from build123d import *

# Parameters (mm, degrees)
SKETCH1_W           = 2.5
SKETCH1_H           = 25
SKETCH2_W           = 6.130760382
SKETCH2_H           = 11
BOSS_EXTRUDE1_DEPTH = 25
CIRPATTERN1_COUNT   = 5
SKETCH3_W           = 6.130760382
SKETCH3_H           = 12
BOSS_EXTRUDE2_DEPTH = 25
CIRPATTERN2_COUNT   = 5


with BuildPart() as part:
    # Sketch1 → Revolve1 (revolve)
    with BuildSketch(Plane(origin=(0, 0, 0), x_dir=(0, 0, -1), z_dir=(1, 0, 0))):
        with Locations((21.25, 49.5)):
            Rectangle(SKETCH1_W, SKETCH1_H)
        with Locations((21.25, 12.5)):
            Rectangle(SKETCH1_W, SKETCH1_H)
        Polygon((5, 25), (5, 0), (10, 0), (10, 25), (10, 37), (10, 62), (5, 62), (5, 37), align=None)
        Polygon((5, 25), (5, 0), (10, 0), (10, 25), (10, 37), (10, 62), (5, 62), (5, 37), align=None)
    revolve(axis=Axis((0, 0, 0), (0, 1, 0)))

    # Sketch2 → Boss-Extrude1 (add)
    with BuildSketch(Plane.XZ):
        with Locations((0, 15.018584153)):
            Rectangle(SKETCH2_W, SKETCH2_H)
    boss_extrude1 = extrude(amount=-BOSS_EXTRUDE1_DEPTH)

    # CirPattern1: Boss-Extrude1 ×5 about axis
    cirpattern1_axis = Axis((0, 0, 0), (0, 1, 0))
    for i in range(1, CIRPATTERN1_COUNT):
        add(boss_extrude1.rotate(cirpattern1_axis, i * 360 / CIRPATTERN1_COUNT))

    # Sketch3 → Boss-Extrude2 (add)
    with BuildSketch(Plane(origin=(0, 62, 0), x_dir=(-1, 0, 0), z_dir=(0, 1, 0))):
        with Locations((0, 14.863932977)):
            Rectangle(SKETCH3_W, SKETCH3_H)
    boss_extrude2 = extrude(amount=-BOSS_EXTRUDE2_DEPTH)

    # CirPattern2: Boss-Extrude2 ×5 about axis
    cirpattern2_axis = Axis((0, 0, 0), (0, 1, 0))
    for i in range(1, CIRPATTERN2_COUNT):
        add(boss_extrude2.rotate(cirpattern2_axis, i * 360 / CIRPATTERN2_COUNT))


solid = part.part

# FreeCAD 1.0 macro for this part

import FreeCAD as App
import Part
import Sketcher
from FreeCAD import Vector

doc = App.newDocument("Part")
body = doc.addObject("PartDesign::Body", "Body")
body.AllowCompound = True

sketch1 = body.newObject("Sketcher::SketchObject", "Sketch")
sketch1.AttachmentSupport = (doc.getObject("YZ_Plane"), [""])
sketch1.MapMode = "FlatFace"
sketch1.addGeometry([
    Part.LineSegment(Vector(62, -20, 0), Vector(37, -20, 0)),
    Part.LineSegment(Vector(37, -20, 0), Vector(37, -22.5, 0)),
    Part.LineSegment(Vector(37, -22.5, 0), Vector(62, -22.5, 0)),
    Part.LineSegment(Vector(62, -22.5, 0), Vector(62, -20, 0)),
    Part.LineSegment(Vector(25, -20, 0), Vector(0, -20, 0)),
    Part.LineSegment(Vector(0, -20, 0), Vector(0, -22.5, 0)),
    Part.LineSegment(Vector(0, -22.5, 0), Vector(25, -22.5, 0)),
    Part.LineSegment(Vector(25, -22.5, 0), Vector(25, -20, 0)),
    Part.LineSegment(Vector(0, -5, 0), Vector(0, -10, 0)),
    Part.LineSegment(Vector(0, -10, 0), Vector(62, -10, 0)),
    Part.LineSegment(Vector(62, -10, 0), Vector(62, -5, 0)),
    Part.LineSegment(Vector(62, -5, 0), Vector(0, -5, 0)),
], False)
sketch1.addConstraint([
    Sketcher.Constraint("Coincident", 0, 2, 1, 1),
    Sketcher.Constraint("Coincident", 1, 2, 2, 1),
    Sketcher.Constraint("Coincident", 2, 2, 3, 1),
    Sketcher.Constraint("Coincident", 3, 2, 0, 1),
    Sketcher.Constraint("Coincident", 4, 2, 5, 1),
    Sketcher.Constraint("Coincident", 5, 2, 6, 1),
    Sketcher.Constraint("Coincident", 6, 2, 7, 1),
    Sketcher.Constraint("Coincident", 7, 2, 4, 1),
    Sketcher.Constraint("Coincident", 8, 2, 9, 1),
    Sketcher.Constraint("Coincident", 9, 2, 10, 1),
    Sketcher.Constraint("Coincident", 10, 2, 11, 1),
    Sketcher.Constraint("Coincident", 11, 2, 8, 1),
    Sketcher.Constraint("Horizontal", 0),
    Sketcher.Constraint("Vertical", 1),
    Sketcher.Constraint("Horizontal", 2),
    Sketcher.Constraint("Vertical", 3),
    Sketcher.Constraint("Horizontal", 4),
    Sketcher.Constraint("Vertical", 5),
    Sketcher.Constraint("Horizontal", 6),
    Sketcher.Constraint("Vertical", 7),
    Sketcher.Constraint("Vertical", 8),
    Sketcher.Constraint("Horizontal", 9),
    Sketcher.Constraint("Vertical", 10),
    Sketcher.Constraint("Horizontal", 11),
    Sketcher.Constraint("PointOnObject", 4, 2, -2),
    Sketcher.Constraint("PointOnObject", 8, 2, -2),
    Sketcher.Constraint("Horizontal", 3, 2, 4, 2),
    Sketcher.Constraint("Horizontal", 2, 2, 5, 2),
    Sketcher.Constraint("Vertical", 3, 2, 9, 2),
    Sketcher.Constraint("Equal", 2, 4),
    Sketcher.Constraint("DistanceX", 0, 2, 0, 1, 25.0),
    Sketcher.Constraint("DistanceX", 9, 1, 9, 2, 62.0),
    Sketcher.Constraint("DistanceY", 8, 2, 8, 1, 5.0),
    Sketcher.Constraint("DistanceY", 1, 2, 1, 1, 2.5),
    Sketcher.Constraint("DistanceY", 0, 2, -1, 1, 20.0),
    Sketcher.Constraint("DistanceY", 8, 2, -1, 1, 10.0),
])
revolution = body.newObject("PartDesign::Revolution", "Revolution")
revolution.Profile = sketch1
revolution.ReferenceAxis = (sketch1, ["H_Axis"])
revolution.Angle = 360

sketch2 = body.newObject("Sketcher::SketchObject", "Sketch001")
sketch2.AttachmentSupport = (doc.getObject("XZ_Plane"), [""])
sketch2.MapMode = "FlatFace"
sketch2.addGeometry([
    Part.LineSegment(Vector(-3, 21, 0), Vector(-3, 10, 0)),
    Part.LineSegment(Vector(-3, 10, 0), Vector(3, 10, 0)),
    Part.LineSegment(Vector(3, 10, 0), Vector(3, 21, 0)),
    Part.LineSegment(Vector(3, 21, 0), Vector(-3, 21, 0)),
], False)
sketch2.addConstraint([
    Sketcher.Constraint("Coincident", 0, 2, 1, 1),
    Sketcher.Constraint("Coincident", 1, 2, 2, 1),
    Sketcher.Constraint("Coincident", 2, 2, 3, 1),
    Sketcher.Constraint("Coincident", 3, 2, 0, 1),
    Sketcher.Constraint("Vertical", 0),
    Sketcher.Constraint("Horizontal", 1),
    Sketcher.Constraint("Vertical", 2),
    Sketcher.Constraint("Horizontal", 3),
    Sketcher.Constraint("DistanceY", 0, 2, 0, 1, 11.0),
    Sketcher.Constraint("DistanceX", 1, 1, 1, 2, 6.13076),
    Sketcher.Constraint("DistanceX", 0, 2, -1, 1, 3.06538),
    Sketcher.Constraint("DistanceY", -1, 1, 0, 2, 9.518584),
])
pad1 = body.newObject("PartDesign::Pad", "Pad")
pad1.Profile = sketch2
pad1.Length = 25
pad1.Reversed = True
doc.recompute()

polarpattern = body.newObject("PartDesign::PolarPattern", "PolarPattern")
polarpattern.Originals = [pad1]
polarpattern.Axis = (doc.getObject("Y_Axis"), [""])
polarpattern.Angle = 360
polarpattern.Occurrences = 5
body.Tip = polarpattern

sketch3 = body.newObject("Sketcher::SketchObject", "Sketch002")
sketch3.AttachmentSupport = (doc.getObject("XZ_Plane"), [""])
sketch3.MapMode = "FlatFace"
sketch3.AttachmentOffset = App.Placement(Vector(0, 0, -62), App.Rotation())
sketch3.addGeometry([
    Part.LineSegment(Vector(3, 21, 0), Vector(3, 9, 0)),
    Part.LineSegment(Vector(3, 9, 0), Vector(-3, 9, 0)),
    Part.LineSegment(Vector(-3, 9, 0), Vector(-3, 21, 0)),
    Part.LineSegment(Vector(-3, 21, 0), Vector(3, 21, 0)),
], False)
sketch3.addConstraint([
    Sketcher.Constraint("Coincident", 0, 2, 1, 1),
    Sketcher.Constraint("Coincident", 1, 2, 2, 1),
    Sketcher.Constraint("Coincident", 2, 2, 3, 1),
    Sketcher.Constraint("Coincident", 3, 2, 0, 1),
    Sketcher.Constraint("Vertical", 0),
    Sketcher.Constraint("Horizontal", 1),
    Sketcher.Constraint("Vertical", 2),
    Sketcher.Constraint("Horizontal", 3),
    Sketcher.Constraint("DistanceY", 0, 2, 0, 1, 12.0),
    Sketcher.Constraint("DistanceX", 1, 2, 1, 1, 6.13076),
    Sketcher.Constraint("DistanceX", -1, 1, 0, 2, 3.06538),
    Sketcher.Constraint("DistanceY", -1, 1, 0, 2, 8.863933),
])
pad2 = body.newObject("PartDesign::Pad", "Pad001")
pad2.Profile = sketch3
pad2.Length = 25
doc.recompute()

polarpattern2 = body.newObject("PartDesign::PolarPattern", "PolarPattern001")
polarpattern2.Originals = [pad2]
polarpattern2.Axis = (doc.getObject("Y_Axis"), [""])
polarpattern2.Angle = 360
polarpattern2.Occurrences = 5
body.Tip = polarpattern2

doc.recompute()
